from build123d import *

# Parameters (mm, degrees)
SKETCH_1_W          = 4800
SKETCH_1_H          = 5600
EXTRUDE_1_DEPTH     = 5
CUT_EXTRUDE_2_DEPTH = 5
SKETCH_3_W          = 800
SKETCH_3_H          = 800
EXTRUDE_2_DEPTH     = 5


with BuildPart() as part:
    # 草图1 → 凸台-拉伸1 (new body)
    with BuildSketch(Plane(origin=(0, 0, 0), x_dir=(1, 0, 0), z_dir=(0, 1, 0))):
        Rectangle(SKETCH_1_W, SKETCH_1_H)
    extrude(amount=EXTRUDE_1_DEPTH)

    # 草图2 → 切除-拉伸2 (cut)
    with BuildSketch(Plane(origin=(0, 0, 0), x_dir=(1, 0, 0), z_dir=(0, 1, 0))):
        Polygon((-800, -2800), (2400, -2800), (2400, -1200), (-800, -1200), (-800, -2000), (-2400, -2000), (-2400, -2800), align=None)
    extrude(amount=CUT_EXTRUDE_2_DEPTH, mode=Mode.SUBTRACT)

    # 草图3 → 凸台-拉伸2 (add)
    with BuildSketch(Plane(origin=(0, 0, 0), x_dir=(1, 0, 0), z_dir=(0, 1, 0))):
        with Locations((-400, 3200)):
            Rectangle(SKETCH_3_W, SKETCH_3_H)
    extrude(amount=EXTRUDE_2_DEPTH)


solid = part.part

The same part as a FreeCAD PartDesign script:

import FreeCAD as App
import Part
import Sketcher
from FreeCAD import Vector
Q = App.Units.Quantity

doc = App.newDocument("Part")
body = doc.addObject("PartDesign::Body", "Body")

sketch1 = doc.addObject("Sketcher::SketchObject", "Sketch")
body.addObject(sketch1)
sketch1.AttachmentSupport = (doc.XZ_Plane, [""])
sketch1.MapMode = "FlatFace"
sketch1.addGeometry([
    Part.LineSegment(Vector(-2400, -2800, 0), Vector(-2400, 2800, 0)),
    Part.LineSegment(Vector(-2400, 2800, 0), Vector(2400, 2800, 0)),
    Part.LineSegment(Vector(2400, 2800, 0), Vector(2400, -2800, 0)),
    Part.LineSegment(Vector(2400, -2800, 0), Vector(-2400, -2800, 0)),
], False)
sketch1.addConstraint([
    Sketcher.Constraint("Coincident", 0, 2, 1, 1),
    Sketcher.Constraint("Coincident", 1, 2, 2, 1),
    Sketcher.Constraint("Coincident", 2, 2, 3, 1),
    Sketcher.Constraint("Coincident", 3, 2, 0, 1),
    Sketcher.Constraint("Vertical", 0),
    Sketcher.Constraint("Horizontal", 1),
    Sketcher.Constraint("Vertical", 2),
    Sketcher.Constraint("Horizontal", 3),
    Sketcher.Constraint("Symmetric", 0, 2, 2, 2, -1, 1),
    Sketcher.Constraint("DistanceX", 1, 1, 1, 2, Q("4800 mm")),
    Sketcher.Constraint("DistanceY", 0, 1, 0, 2, Q("5600 mm")),
])
pad1 = doc.addObject("PartDesign::Pad", "Pad")
body.addObject(pad1)
pad1.Profile = sketch1
pad1.Length = 5
pad1.Reversed = True

sketch2 = doc.addObject("Sketcher::SketchObject", "Sketch001")
body.addObject(sketch2)
sketch2.AttachmentSupport = (doc.XZ_Plane, [""])
sketch2.MapMode = "FlatFace"
sketch2.addGeometry([
    Part.LineSegment(Vector(2400, 2800, 0), Vector(2400, 1200, 0)),
    Part.LineSegment(Vector(2400, 1200, 0), Vector(-800, 1200, 0)),
    Part.LineSegment(Vector(-800, 1200, 0), Vector(-800, 2000, 0)),
    Part.LineSegment(Vector(-800, 2000, 0), Vector(-2400, 2000, 0)),
    Part.LineSegment(Vector(-2400, 2000, 0), Vector(-2400, 2800, 0)),
    Part.LineSegment(Vector(-2400, 2800, 0), Vector(2400, 2800, 0)),
], False)
sketch2.addConstraint([
    Sketcher.Constraint("Coincident", 0, 2, 1, 1),
    Sketcher.Constraint("Coincident", 1, 2, 2, 1),
    Sketcher.Constraint("Coincident", 2, 2, 3, 1),
    Sketcher.Constraint("Coincident", 3, 2, 4, 1),
    Sketcher.Constraint("Coincident", 4, 2, 5, 1),
    Sketcher.Constraint("Coincident", 5, 2, 0, 1),
    Sketcher.Constraint("Vertical", 0),
    Sketcher.Constraint("Horizontal", 1),
    Sketcher.Constraint("Vertical", 2),
    Sketcher.Constraint("Horizontal", 3),
    Sketcher.Constraint("Vertical", 4),
    Sketcher.Constraint("Horizontal", 5),
    Sketcher.Constraint("Equal", 3, 0),
    Sketcher.Constraint("Equal", 2, 4),
    Sketcher.Constraint("DistanceX", 1, 2, 1, 1, Q("3200 mm")),
    Sketcher.Constraint("DistanceX", 3, 2, 3, 1, Q("1600 mm")),
    Sketcher.Constraint("DistanceX", -1, 1, 0, 2, Q("2400 mm")),
    Sketcher.Constraint("DistanceY", -1, 1, 0, 2, Q("1200 mm")),
])
pocket1 = doc.addObject("PartDesign::Pocket", "Pocket")
body.addObject(pocket1)
pocket1.Profile = sketch2
pocket1.Length = 5

sketch3 = doc.addObject("Sketcher::SketchObject", "Sketch002")
body.addObject(sketch3)
sketch3.AttachmentSupport = (doc.XZ_Plane, [""])
sketch3.MapMode = "FlatFace"
sketch3.addGeometry([
    Part.LineSegment(Vector(-800, -3600, 0), Vector(-800, -2800, 0)),
    Part.LineSegment(Vector(-800, -2800, 0), Vector(0, -2800, 0)),
    Part.LineSegment(Vector(0, -2800, 0), Vector(0, -3600, 0)),
    Part.LineSegment(Vector(0, -3600, 0), Vector(-800, -3600, 0)),
], False)
sketch3.addConstraint([
    Sketcher.Constraint("Coincident", 0, 2, 1, 1),
    Sketcher.Constraint("Coincident", 1, 2, 2, 1),
    Sketcher.Constraint("Coincident", 2, 2, 3, 1),
    Sketcher.Constraint("Coincident", 3, 2, 0, 1),
    Sketcher.Constraint("Vertical", 0),
    Sketcher.Constraint("Horizontal", 1),
    Sketcher.Constraint("Vertical", 2),
    Sketcher.Constraint("Horizontal", 3),
    Sketcher.Constraint("PointOnObject", 1, 2, -2),
    Sketcher.Constraint("Equal", 3, 0),
    Sketcher.Constraint("DistanceX", 1, 1, 1, 2, Q("800 mm")),
    Sketcher.Constraint("DistanceY", 0, 2, -1, 1, Q("2800 mm")),
])
pad2 = doc.addObject("PartDesign::Pad", "Pad001")
body.addObject(pad2)
pad2.Profile = sketch3
pad2.Length = 5
pad2.Reversed = True

doc.recompute()
